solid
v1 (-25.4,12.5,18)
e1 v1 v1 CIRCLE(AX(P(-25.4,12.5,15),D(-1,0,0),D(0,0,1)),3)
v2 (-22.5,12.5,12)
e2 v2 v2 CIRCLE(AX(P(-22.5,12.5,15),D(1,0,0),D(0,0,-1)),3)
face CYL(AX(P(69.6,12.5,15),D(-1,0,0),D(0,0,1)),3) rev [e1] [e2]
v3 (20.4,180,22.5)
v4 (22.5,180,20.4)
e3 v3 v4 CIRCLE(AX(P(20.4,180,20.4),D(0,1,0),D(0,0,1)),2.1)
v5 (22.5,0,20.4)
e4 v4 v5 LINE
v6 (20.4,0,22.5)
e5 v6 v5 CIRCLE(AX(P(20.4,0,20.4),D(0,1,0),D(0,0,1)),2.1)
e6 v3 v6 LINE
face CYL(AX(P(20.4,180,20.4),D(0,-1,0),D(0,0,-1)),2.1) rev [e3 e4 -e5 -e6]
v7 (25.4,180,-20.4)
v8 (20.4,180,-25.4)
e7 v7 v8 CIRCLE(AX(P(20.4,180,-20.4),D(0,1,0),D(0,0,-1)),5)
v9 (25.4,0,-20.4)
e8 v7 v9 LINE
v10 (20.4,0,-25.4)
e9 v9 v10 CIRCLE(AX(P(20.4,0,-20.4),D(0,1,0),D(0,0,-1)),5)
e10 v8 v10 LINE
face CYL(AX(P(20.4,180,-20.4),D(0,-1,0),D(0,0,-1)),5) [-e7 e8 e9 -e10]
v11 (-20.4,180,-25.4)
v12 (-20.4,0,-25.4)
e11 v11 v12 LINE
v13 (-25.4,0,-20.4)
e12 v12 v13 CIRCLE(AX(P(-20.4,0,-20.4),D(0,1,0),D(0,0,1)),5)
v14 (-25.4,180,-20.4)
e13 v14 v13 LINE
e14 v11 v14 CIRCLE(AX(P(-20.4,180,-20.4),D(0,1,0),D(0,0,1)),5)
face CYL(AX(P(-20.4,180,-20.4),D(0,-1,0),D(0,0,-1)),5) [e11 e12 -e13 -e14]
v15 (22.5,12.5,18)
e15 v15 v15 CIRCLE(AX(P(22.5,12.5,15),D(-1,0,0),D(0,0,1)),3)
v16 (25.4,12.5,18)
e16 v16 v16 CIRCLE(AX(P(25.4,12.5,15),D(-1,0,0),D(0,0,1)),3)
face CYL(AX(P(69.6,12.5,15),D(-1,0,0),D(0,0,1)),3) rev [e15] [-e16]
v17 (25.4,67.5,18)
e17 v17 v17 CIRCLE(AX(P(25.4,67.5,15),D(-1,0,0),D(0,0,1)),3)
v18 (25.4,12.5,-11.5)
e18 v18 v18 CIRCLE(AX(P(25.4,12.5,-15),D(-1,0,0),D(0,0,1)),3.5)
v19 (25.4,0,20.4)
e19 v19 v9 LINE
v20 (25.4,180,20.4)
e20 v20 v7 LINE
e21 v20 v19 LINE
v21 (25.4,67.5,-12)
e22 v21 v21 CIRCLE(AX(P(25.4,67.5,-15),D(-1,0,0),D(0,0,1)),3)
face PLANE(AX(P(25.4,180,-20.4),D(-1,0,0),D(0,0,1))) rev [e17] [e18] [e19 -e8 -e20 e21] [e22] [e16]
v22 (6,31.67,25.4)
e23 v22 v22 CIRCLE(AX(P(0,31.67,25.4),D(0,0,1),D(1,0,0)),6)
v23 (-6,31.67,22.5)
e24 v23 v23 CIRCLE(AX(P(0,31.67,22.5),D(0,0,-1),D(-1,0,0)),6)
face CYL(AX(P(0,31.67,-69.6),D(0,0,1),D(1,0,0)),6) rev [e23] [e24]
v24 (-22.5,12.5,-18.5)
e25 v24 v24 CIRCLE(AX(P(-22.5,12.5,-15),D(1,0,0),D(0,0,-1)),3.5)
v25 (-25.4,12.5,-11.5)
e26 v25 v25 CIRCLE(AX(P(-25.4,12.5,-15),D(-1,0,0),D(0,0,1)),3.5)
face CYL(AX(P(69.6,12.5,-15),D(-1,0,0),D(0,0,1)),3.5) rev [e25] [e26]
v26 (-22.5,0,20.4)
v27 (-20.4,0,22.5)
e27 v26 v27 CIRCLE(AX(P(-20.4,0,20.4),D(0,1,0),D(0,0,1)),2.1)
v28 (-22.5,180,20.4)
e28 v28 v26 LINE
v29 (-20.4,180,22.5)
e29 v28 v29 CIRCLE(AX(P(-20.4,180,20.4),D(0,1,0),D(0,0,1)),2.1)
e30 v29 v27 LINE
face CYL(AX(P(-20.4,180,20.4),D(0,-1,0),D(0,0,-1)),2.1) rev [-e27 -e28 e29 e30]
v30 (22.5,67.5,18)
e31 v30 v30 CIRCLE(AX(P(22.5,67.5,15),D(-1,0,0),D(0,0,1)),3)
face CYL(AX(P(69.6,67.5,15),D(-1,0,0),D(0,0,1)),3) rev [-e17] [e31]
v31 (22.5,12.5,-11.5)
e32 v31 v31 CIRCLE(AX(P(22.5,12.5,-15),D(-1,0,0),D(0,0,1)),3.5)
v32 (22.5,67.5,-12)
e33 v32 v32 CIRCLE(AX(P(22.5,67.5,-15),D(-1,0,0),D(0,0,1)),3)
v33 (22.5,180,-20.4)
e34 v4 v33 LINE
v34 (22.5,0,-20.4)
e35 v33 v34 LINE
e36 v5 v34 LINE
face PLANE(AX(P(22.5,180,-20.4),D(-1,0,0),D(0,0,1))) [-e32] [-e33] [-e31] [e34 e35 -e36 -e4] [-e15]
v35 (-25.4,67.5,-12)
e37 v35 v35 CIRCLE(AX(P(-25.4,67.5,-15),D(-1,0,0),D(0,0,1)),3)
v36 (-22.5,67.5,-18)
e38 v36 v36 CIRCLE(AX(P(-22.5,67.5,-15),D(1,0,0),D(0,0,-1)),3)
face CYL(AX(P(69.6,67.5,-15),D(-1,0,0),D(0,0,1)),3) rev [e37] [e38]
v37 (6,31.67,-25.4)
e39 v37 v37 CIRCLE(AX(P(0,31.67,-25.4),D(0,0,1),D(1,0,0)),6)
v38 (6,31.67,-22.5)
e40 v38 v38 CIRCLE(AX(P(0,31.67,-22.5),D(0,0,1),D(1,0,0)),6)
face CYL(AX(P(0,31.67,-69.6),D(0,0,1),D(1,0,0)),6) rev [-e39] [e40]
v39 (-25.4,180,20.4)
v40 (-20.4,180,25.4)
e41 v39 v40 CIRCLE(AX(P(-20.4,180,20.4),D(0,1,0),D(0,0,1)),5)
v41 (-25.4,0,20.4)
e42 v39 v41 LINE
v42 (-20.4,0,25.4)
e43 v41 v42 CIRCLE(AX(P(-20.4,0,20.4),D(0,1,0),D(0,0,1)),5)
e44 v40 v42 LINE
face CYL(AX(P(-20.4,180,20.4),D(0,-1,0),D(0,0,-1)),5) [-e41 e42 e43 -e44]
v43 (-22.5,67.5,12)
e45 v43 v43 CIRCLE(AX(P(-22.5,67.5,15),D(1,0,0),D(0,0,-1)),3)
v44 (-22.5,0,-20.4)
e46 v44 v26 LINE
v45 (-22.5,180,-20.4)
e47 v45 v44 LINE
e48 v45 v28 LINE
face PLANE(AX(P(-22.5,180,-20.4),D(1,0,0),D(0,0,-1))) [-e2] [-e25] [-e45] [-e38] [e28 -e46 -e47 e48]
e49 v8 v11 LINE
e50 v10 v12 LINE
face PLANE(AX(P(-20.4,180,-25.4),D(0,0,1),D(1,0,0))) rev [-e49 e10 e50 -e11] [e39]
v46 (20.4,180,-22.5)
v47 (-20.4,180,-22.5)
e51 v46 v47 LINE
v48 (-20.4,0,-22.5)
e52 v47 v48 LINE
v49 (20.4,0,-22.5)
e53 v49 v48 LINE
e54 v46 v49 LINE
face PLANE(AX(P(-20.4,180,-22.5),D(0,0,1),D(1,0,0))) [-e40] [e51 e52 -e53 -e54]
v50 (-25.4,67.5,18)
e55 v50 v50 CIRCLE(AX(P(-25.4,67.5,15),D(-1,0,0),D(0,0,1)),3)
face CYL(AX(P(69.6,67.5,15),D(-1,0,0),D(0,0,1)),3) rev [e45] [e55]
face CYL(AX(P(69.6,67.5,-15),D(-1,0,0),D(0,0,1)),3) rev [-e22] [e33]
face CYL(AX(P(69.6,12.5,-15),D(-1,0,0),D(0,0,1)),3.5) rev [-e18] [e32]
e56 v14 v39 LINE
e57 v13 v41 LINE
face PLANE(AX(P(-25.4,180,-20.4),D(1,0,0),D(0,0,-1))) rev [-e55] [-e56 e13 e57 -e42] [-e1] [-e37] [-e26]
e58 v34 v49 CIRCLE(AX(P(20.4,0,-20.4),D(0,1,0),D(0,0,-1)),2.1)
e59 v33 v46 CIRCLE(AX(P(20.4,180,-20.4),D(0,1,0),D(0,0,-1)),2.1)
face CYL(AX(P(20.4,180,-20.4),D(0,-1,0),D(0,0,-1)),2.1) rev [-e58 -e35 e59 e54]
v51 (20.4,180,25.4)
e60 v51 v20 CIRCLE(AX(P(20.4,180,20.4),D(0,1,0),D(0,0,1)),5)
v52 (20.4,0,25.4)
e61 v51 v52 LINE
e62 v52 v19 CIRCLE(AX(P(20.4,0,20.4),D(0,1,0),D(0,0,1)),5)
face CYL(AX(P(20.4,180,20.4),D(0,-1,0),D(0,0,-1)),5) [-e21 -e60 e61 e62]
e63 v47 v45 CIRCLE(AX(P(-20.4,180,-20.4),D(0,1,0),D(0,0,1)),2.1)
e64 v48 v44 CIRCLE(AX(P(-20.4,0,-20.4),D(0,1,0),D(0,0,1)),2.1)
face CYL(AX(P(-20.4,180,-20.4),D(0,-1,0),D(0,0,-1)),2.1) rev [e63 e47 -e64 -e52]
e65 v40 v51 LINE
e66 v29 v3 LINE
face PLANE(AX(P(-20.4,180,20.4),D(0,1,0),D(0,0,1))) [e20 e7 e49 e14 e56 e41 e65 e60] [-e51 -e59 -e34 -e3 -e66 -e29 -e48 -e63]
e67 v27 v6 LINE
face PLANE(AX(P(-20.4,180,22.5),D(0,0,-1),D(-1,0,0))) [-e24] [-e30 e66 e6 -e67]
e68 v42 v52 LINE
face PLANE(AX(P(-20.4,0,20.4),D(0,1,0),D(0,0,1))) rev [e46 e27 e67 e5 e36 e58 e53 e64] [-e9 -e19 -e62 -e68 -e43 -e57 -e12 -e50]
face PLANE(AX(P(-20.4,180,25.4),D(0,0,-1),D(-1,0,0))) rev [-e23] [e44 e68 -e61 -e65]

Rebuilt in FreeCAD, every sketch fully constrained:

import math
import FreeCAD as App
import Part
import Sketcher

V = App.Vector

doc = App.newDocument("Part")
params = doc.addObject("Spreadsheet::Sheet", "Params")
for row, (alias, value) in enumerate([
    ("sketch1_radius", "5 mm"),
    ("sketch1_radius2", "2.1 mm"),
    ("sketch1_width", "40.8 mm"),
    ("pad1_length", "180 mm"),
    ("sketch2_diameter", "6 mm"),
    ("sketch2_diameter2", "7 mm"),
    ("pocket1_length", "95 mm"),
    ("sketch3_diameter", "12 mm"),
    ("pocket2_length", "95 mm"),
], start=1):
    params.set(f"A{row}", alias)
    params.set(f"B{row}", "=" + value)
    params.setAlias(f"B{row}", alias)

body = doc.addObject("PartDesign::Body", "Body")

sketch1 = body.newObject("Sketcher::SketchObject", "Sketch")
sketch1.AttachmentSupport = (doc.getObject("XZ_Plane"), [""])
sketch1.MapMode = "FlatFace"
sketch1.addGeometry(Part.LineSegment(V(20.4, -25.4, 0), V(-20.4, -25.4, 0)), False)
sketch1.addGeometry(Part.ArcOfCircle(Part.Circle(V(-20.4, -20.4, 0), V(0, 0, 1), 5), math.radians(180), math.radians(270)), False)
sketch1.addGeometry(Part.LineSegment(V(-25.4, -20.4, 0), V(-25.4, 20.4, 0)), False)
sketch1.addGeometry(Part.ArcOfCircle(Part.Circle(V(-20.4, 20.4, 0), V(0, 0, 1), 5), math.radians(90), math.radians(180)), False)
sketch1.addGeometry(Part.LineSegment(V(-20.4, 25.4, 0), V(20.4, 25.4, 0)), False)
sketch1.addGeometry(Part.ArcOfCircle(Part.Circle(V(20.4, 20.4, 0), V(0, 0, 1), 5), math.radians(0), math.radians(90)), False)
sketch1.addGeometry(Part.LineSegment(V(25.4, 20.4, 0), V(25.4, -20.4, 0)), False)
sketch1.addGeometry(Part.ArcOfCircle(Part.Circle(V(20.4, -20.4, 0), V(0, 0, 1), 5), math.radians(-90), math.radians(0)), False)
sketch1.addGeometry(Part.ArcOfCircle(Part.Circle(V(-20.4, -20.4, 0), V(0, 0, 1), 2.1), math.radians(-180), math.radians(-90)), False)
sketch1.addGeometry(Part.LineSegment(V(-20.4, -22.5, 0), V(20.4, -22.5, 0)), False)
sketch1.addGeometry(Part.ArcOfCircle(Part.Circle(V(20.4, -20.4, 0), V(0, 0, 1), 2.1), math.radians(-90), math.radians(0)), False)
sketch1.addGeometry(Part.LineSegment(V(22.5, -20.4, 0), V(22.5, 20.4, 0)), False)
sketch1.addGeometry(Part.ArcOfCircle(Part.Circle(V(20.4, 20.4, 0), V(0, 0, 1), 2.1), math.radians(0), math.radians(90)), False)
sketch1.addGeometry(Part.LineSegment(V(20.4, 22.5, 0), V(-20.4, 22.5, 0)), False)
sketch1.addGeometry(Part.ArcOfCircle(Part.Circle(V(-20.4, 20.4, 0), V(0, 0, 1), 2.1), math.radians(90), math.radians(180)), False)
sketch1.addGeometry(Part.LineSegment(V(-22.5, 20.4, 0), V(-22.5, -20.4, 0)), False)
sketch1.addConstraint(Sketcher.Constraint("Tangent", 0, 2, 1, 2))
sketch1.addConstraint(Sketcher.Constraint("Tangent", 1, 1, 2, 1))
sketch1.addConstraint(Sketcher.Constraint("Tangent", 2, 2, 3, 2))
sketch1.addConstraint(Sketcher.Constraint("Tangent", 3, 1, 4, 1))
sketch1.addConstraint(Sketcher.Constraint("Tangent", 4, 2, 5, 2))
sketch1.addConstraint(Sketcher.Constraint("Tangent", 5, 1, 6, 1))
sketch1.addConstraint(Sketcher.Constraint("Tangent", 6, 2, 7, 2))
sketch1.addConstraint(Sketcher.Constraint("Tangent", 7, 1, 0, 1))
sketch1.addConstraint(Sketcher.Constraint("Tangent", 8, 2, 9, 1))
sketch1.addConstraint(Sketcher.Constraint("Tangent", 9, 2, 10, 1))
sketch1.addConstraint(Sketcher.Constraint("Tangent", 10, 2, 11, 1))
sketch1.addConstraint(Sketcher.Constraint("Tangent", 11, 2, 12, 1))
sketch1.addConstraint(Sketcher.Constraint("Tangent", 12, 2, 13, 1))
sketch1.addConstraint(Sketcher.Constraint("Tangent", 13, 2, 14, 1))
sketch1.addConstraint(Sketcher.Constraint("Tangent", 14, 2, 15, 1))
sketch1.addConstraint(Sketcher.Constraint("Tangent", 15, 2, 8, 1))
sketch1.addConstraint(Sketcher.Constraint("Horizontal", 0))
sketch1.addConstraint(Sketcher.Constraint("Vertical", 2))
sketch1.addConstraint(Sketcher.Constraint("Horizontal", 4))
sketch1.addConstraint(Sketcher.Constraint("Vertical", 6))
sketch1.addConstraint(Sketcher.Constraint("Horizontal", 9))
sketch1.addConstraint(Sketcher.Constraint("Vertical", 11))
sketch1.addConstraint(Sketcher.Constraint("Horizontal", 13))
sketch1.addConstraint(Sketcher.Constraint("Vertical", 15))
sketch1.addConstraint(Sketcher.Constraint("Coincident", 8, 3, 1, 3))
sketch1.addConstraint(Sketcher.Constraint("Coincident", 10, 3, 7, 3))
sketch1.addConstraint(Sketcher.Constraint("Coincident", 12, 3, 5, 3))
sketch1.addConstraint(Sketcher.Constraint("Equal", 1, 3))
sketch1.addConstraint(Sketcher.Constraint("Equal", 3, 5))
sketch1.addConstraint(Sketcher.Constraint("Equal", 5, 7))
sketch1.addConstraint(Sketcher.Constraint("Equal", 12, 14))
sketch1.addConstraint(Sketcher.Constraint("Symmetric", 1, 3, 5, 3, -1, 1))
sketch1.addConstraint(Sketcher.Constraint("Equal", 13, 2))
sketch1.addConstraint(Sketcher.Constraint("Radius", 1, 5.0))
sketch1.addConstraint(Sketcher.Constraint("Radius", 8, 2.1))
sketch1.addConstraint(Sketcher.Constraint("DistanceX", 0, 2, 0, 1, 40.8))
sketch1.setExpression("Constraints[33]", "Params.sketch1_radius")
sketch1.setExpression("Constraints[34]", "Params.sketch1_radius2")
sketch1.setExpression("Constraints[35]", "Params.sketch1_width")
pad1 = body.newObject("PartDesign::Pad", "Pad")
pad1.Profile = sketch1
pad1.setExpression("Length", "Params.pad1_length")
pad1.Reversed = True

sketch2 = body.newObject("Sketcher::SketchObject", "Sketch001")
sketch2.AttachmentSupport = (doc.getObject("YZ_Plane"), [""])
sketch2.MapMode = "FlatFace"
sketch2.AttachmentOffset = App.Placement(V(0, 0, -25.4), App.Rotation())
sketch2.addGeometry(Part.Circle(V(67.5, -15, 0), V(0, 0, 1), 3), False)
sketch2.addGeometry(Part.Circle(V(67.5, 15, 0), V(0, 0, 1), 3), False)
sketch2.addGeometry(Part.Circle(V(12.5, -15, 0), V(0, 0, 1), 3.5), False)
sketch2.addGeometry(Part.Circle(V(12.5, 15, 0), V(0, 0, 1), 3), False)
sketch2.addConstraint(Sketcher.Constraint("Equal", 0, 1))
sketch2.addConstraint(Sketcher.Constraint("Equal", 1, 3))
sketch2.addConstraint(Sketcher.Constraint("Symmetric", 0, 3, 1, 3, -1))
sketch2.addConstraint(Sketcher.Constraint("Symmetric", 2, 3, 3, 3, -1))
sketch2.addConstraint(Sketcher.Constraint("Horizontal", 0, 3, 2, 3))
sketch2.addConstraint(Sketcher.Constraint("Diameter", 0, 6.0))
sketch2.addConstraint(Sketcher.Constraint("Diameter", 2, 7.0))
sketch2.addConstraint(Sketcher.Constraint("DistanceY", 0, 3, -1, 1, 15.0))
sketch2.addConstraint(Sketcher.Constraint("DistanceX", 2, 3, 0, 3, 55.0))
sketch2.addConstraint(Sketcher.Constraint("DistanceX", -1, 1, 0, 3, 67.5))
sketch2.setExpression("Constraints[5]", "Params.sketch2_diameter")
sketch2.setExpression("Constraints[6]", "Params.sketch2_diameter2")
pocket1 = body.newObject("PartDesign::Pocket", "Pocket")
pocket1.Profile = sketch2
pocket1.setExpression("Length", "Params.pocket1_length")
pocket1.Reversed = True

sketch3 = body.newObject("Sketcher::SketchObject", "Sketch002")
sketch3.AttachmentSupport = (doc.getObject("XY_Plane"), [""])
sketch3.MapMode = "FlatFace"
sketch3.AttachmentOffset = App.Placement(V(0, 0, 25.4), App.Rotation())
sketch3.addGeometry(Part.Circle(V(0, 32, 0), V(0, 0, 1), 6), False)
sketch3.addConstraint(Sketcher.Constraint("PointOnObject", 0, 3, -2))
sketch3.addConstraint(Sketcher.Constraint("Diameter", 0, 12.0))
sketch3.addConstraint(Sketcher.Constraint("DistanceY", -1, 1, 0, 3, 31.67))
sketch3.setExpression("Constraints[1]", "Params.sketch3_diameter")
pocket2 = body.newObject("PartDesign::Pocket", "Pocket001")
pocket2.Profile = sketch3
pocket2.setExpression("Length", "Params.pocket2_length")

doc.recompute()
